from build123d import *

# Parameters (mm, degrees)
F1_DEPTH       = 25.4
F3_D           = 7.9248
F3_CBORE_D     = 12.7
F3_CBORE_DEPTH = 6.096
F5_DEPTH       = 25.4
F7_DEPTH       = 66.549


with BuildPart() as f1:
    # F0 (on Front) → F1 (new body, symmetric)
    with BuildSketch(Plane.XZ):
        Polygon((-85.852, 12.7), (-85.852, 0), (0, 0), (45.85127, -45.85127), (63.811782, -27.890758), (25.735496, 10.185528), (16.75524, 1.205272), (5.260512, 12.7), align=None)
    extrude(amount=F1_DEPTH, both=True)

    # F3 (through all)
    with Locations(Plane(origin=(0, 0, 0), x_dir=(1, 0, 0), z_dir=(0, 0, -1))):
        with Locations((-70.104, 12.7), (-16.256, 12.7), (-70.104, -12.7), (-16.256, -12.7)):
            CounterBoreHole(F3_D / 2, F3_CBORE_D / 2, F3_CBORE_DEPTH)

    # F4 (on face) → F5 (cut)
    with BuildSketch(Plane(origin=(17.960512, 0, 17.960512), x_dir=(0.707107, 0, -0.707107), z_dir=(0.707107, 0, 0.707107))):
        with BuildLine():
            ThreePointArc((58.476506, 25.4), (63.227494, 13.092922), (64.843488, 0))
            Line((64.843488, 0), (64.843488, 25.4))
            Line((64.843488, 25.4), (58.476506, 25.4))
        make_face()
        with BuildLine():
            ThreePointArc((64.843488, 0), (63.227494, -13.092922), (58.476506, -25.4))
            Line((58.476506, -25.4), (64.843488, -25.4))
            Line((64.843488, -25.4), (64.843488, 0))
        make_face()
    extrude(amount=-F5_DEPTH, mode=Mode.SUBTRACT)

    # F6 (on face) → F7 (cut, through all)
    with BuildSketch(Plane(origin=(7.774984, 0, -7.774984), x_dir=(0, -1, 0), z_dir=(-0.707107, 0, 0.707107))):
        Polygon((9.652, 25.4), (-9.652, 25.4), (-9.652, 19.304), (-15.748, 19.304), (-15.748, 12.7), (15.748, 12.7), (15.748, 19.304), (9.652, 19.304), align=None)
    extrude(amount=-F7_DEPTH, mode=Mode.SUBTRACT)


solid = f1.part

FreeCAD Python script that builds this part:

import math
import FreeCAD as App
import Part
import Sketcher
Q = App.Units.Quantity

doc = App.newDocument("Part")
body = doc.addObject("PartDesign::Body", "Body")

# Sketch on XZ plane
sketch1 = body.newObject("Sketcher::SketchObject", "Sketch")
sketch1.AttachmentSupport = (doc.getObject("XZ_Plane"), [""])
sketch1.MapMode = "FlatFace"
sketch1.addGeometry([
    Part.LineSegment(App.Vector(-86, 13, 0), App.Vector(-86, 0, 0)),  # 0
    Part.LineSegment(App.Vector(-86, 0, 0), App.Vector(0, 0, 0)),  # 1
    Part.LineSegment(App.Vector(0, 0, 0), App.Vector(46, -46, 0)),  # 2
    Part.LineSegment(App.Vector(46, -46, 0), App.Vector(64, -28, 0)),  # 3
    Part.LineSegment(App.Vector(64, -28, 0), App.Vector(26, 10, 0)),  # 4
    Part.LineSegment(App.Vector(26, 10, 0), App.Vector(17, 1, 0)),  # 5
    Part.LineSegment(App.Vector(17, 1, 0), App.Vector(5, 13, 0)),  # 6
    Part.LineSegment(App.Vector(5, 13, 0), App.Vector(-86, 13, 0)),  # 7
], False)
sketch1.addConstraint([
    Sketcher.Constraint("Coincident", 0, 2, 1, 1),
    Sketcher.Constraint("Coincident", 1, 2, 2, 1),
    Sketcher.Constraint("Coincident", 2, 2, 3, 1),
    Sketcher.Constraint("Coincident", 3, 2, 4, 1),
    Sketcher.Constraint("Coincident", 4, 2, 5, 1),
    Sketcher.Constraint("Coincident", 5, 2, 6, 1),
    Sketcher.Constraint("Coincident", 6, 2, 7, 1),
    Sketcher.Constraint("Coincident", 7, 2, 0, 1),
    Sketcher.Constraint("Vertical", 0),
    Sketcher.Constraint("Horizontal", 1),
    Sketcher.Constraint("Horizontal", 7),
    Sketcher.Constraint("Coincident", 1, 2, -1, 1),
    Sketcher.Constraint("Perpendicular", 2, 3),
    Sketcher.Constraint("Perpendicular", 3, 4),
    Sketcher.Constraint("Perpendicular", 4, 5),
    Sketcher.Constraint("Perpendicular", 5, 6),
    Sketcher.Constraint("Distance", 3, Q("1 in")),
    Sketcher.Constraint("DistanceY", 0, 2, 0, 1, Q("0.5 in")),
    Sketcher.Constraint("Angle", 2, Q("-45 deg")),
    Sketcher.Constraint("Distance", 5, Q("0.5 in")),
    Sketcher.Constraint("DistanceX", 1, 1, 1, 2, Q("3.38 in")),
    Sketcher.Constraint("Distance", 4, Q("2.12 in")),
    Sketcher.Constraint("Distance", 6, Q("0.64 in")),
])
pad1 = body.newObject("PartDesign::Pad", "Pad")
pad1.Profile = sketch1
pad1.Length = Q("2 in")
pad1.Midplane = True

# Sketch on XY plane
sketch2 = body.newObject("Sketcher::SketchObject", "Sketch001")
sketch2.AttachmentSupport = (doc.getObject("XY_Plane"), [""])
sketch2.MapMode = "FlatFace"
sketch2.addGeometry([
    Part.Circle(App.Vector(-70.1, -12.7, 0), App.Vector(0, 0, 1), 4),
    Part.Circle(App.Vector(-16.3, -12.7, 0), App.Vector(0, 0, 1), 4),
    Part.Circle(App.Vector(-70.1, 12.7, 0), App.Vector(0, 0, 1), 4),
    Part.Circle(App.Vector(-16.3, 12.7, 0), App.Vector(0, 0, 1), 4),
], False)
sketch2.addConstraint([
    Sketcher.Constraint("Equal", 0, 1),
    Sketcher.Constraint("Equal", 1, 2),
    Sketcher.Constraint("Equal", 2, 3),
    Sketcher.Constraint("Symmetric", 0, 3, 2, 3, -1),
    Sketcher.Constraint("Symmetric", 1, 3, 3, 3, -1),
    Sketcher.Constraint("Horizontal", 0, 3, 1, 3),
    Sketcher.Constraint("Diameter", 0, Q("0.312 in")),
    Sketcher.Constraint("DistanceY", 0, 3, 2, 3, Q("1 in")),
    Sketcher.Constraint("DistanceX", 0, 3, -1, 1, Q("2.76 in")),
    Sketcher.Constraint("DistanceX", 1, 3, -1, 1, Q("0.64 in")),
])
doc.recompute()
hole = body.newObject("PartDesign::Hole", "Hole")
hole.Profile = sketch2
hole.ThreadType = "None"
hole.Diameter = Q("0.312 in")
hole.DepthType = "ThroughAll"
hole.HoleCutType = "Counterbore"
hole.HoleCutDiameter = Q("0.5 in")
hole.HoleCutDepth = Q("0.24 in")
hole.Reversed = True

# Sketch on an angled plane
sketch3 = body.newObject("Sketcher::SketchObject", "Sketch002")
sketch3.Placement = App.Placement(App.Vector(17.960512, 0, 17.960512), App.Rotation(App.Vector(0.707106781, 0, -0.707106781), App.Vector(0, 0.999999999, 0), App.Vector(0.707106781, 0, 0.707106781), "ZXY"))
sketch3.addGeometry([
    Part.ArcOfCircle(Part.Circle(App.Vector(11, 0, 0), App.Vector(0, 0, 1), 54), math.radians(0), math.radians(28)),  # 0
    Part.LineSegment(App.Vector(65, 0, 0), App.Vector(65, 25, 0)),  # 1
    Part.LineSegment(App.Vector(65, 25, 0), App.Vector(58, 25, 0)),  # 2
    Part.ArcOfCircle(Part.Circle(App.Vector(11, 0, 0), App.Vector(0, 0, 1), 54), math.radians(-28), math.radians(0)),  # 3
    Part.LineSegment(App.Vector(58, -25, 0), App.Vector(65, -25, 0)),  # 4
    Part.LineSegment(App.Vector(65, -25, 0), App.Vector(65, 0, 0)),  # 5
], False)
sketch3.addConstraint([
    Sketcher.Constraint("Tangent", 0, 1, 1, 1),
    Sketcher.Constraint("Coincident", 1, 2, 2, 1),
    Sketcher.Constraint("Coincident", 2, 2, 0, 2),
    Sketcher.Constraint("Coincident", 3, 1, 4, 1),
    Sketcher.Constraint("Coincident", 4, 2, 5, 1),
    Sketcher.Constraint("Tangent", 5, 2, 3, 2),
    Sketcher.Constraint("Vertical", 1),
    Sketcher.Constraint("Horizontal", 2),
    Sketcher.Constraint("Horizontal", 4),
    Sketcher.Constraint("Vertical", 5),
    Sketcher.Constraint("Coincident", 3, 3, 0, 3),
    Sketcher.Constraint("Equal", 0, 3),
    Sketcher.Constraint("Symmetric", 2, 2, 3, 1, -1),
    Sketcher.Constraint("DistanceY", 1, 1, 1, 2, Q("1 in")),
    Sketcher.Constraint("Radius", 0, Q("53.848009 mm")),
    Sketcher.Constraint("DistanceX", -1, 1, 0, 3, Q("10.995479 mm")),
])
pocket1 = body.newObject("PartDesign::Pocket", "Pocket")
pocket1.Profile = sketch3
pocket1.Length = Q("1 in")

# Sketch on an angled plane
sketch4 = body.newObject("Sketcher::SketchObject", "Sketch003")
sketch4.Placement = App.Placement(App.Vector(7.774984, 0, -7.774984), App.Rotation(App.Vector(0, -1, 0), App.Vector(0.707106781, 0, 0.707106781), App.Vector(-0.707106781, 0, 0.707106781), "ZXY"))
sketch4.addGeometry([
    Part.LineSegment(App.Vector(10, 25, 0), App.Vector(-10, 25, 0)),  # 0
    Part.LineSegment(App.Vector(-10, 25, 0), App.Vector(-10, 19, 0)),  # 1
    Part.LineSegment(App.Vector(-10, 19, 0), App.Vector(-16, 19, 0)),  # 2
    Part.LineSegment(App.Vector(-16, 19, 0), App.Vector(-16, 13, 0)),  # 3
    Part.LineSegment(App.Vector(-16, 13, 0), App.Vector(16, 13, 0)),  # 4
    Part.LineSegment(App.Vector(16, 13, 0), App.Vector(16, 19, 0)),  # 5
    Part.LineSegment(App.Vector(16, 19, 0), App.Vector(10, 19, 0)),  # 6
    Part.LineSegment(App.Vector(10, 19, 0), App.Vector(10, 25, 0)),  # 7
], False)
sketch4.addConstraint([
    Sketcher.Constraint("Coincident", 0, 2, 1, 1),
    Sketcher.Constraint("Coincident", 1, 2, 2, 1),
    Sketcher.Constraint("Coincident", 2, 2, 3, 1),
    Sketcher.Constraint("Coincident", 3, 2, 4, 1),
    Sketcher.Constraint("Coincident", 4, 2, 5, 1),
    Sketcher.Constraint("Coincident", 5, 2, 6, 1),
    Sketcher.Constraint("Coincident", 6, 2, 7, 1),
    Sketcher.Constraint("Coincident", 7, 2, 0, 1),
    Sketcher.Constraint("Horizontal", 0),
    Sketcher.Constraint("Vertical", 1),
    Sketcher.Constraint("Horizontal", 2),
    Sketcher.Constraint("Vertical", 3),
    Sketcher.Constraint("Horizontal", 4),
    Sketcher.Constraint("Vertical", 5),
    Sketcher.Constraint("Horizontal", 6),
    Sketcher.Constraint("Vertical", 7),
    Sketcher.Constraint("Symmetric", 2, 2, 5, 2, -2),
    Sketcher.Constraint("Equal", 2, 6),
    Sketcher.Constraint("Equal", 6, 1),
    Sketcher.Constraint("DistanceY", -1, 1, 0, 2, Q("1 in")),
    Sketcher.Constraint("DistanceX", 1, 2, 4, 2, Q("1 in")),
    Sketcher.Constraint("DistanceX", 0, 2, 0, 1, Q("0.76 in")),
    Sketcher.Constraint("DistanceY", 3, 2, 3, 1, Q("0.26 in")),
])
pocket2 = body.newObject("PartDesign::Pocket", "Pocket001")
pocket2.Profile = sketch4
pocket2.Type = "ThroughAll"

doc.recompute()
